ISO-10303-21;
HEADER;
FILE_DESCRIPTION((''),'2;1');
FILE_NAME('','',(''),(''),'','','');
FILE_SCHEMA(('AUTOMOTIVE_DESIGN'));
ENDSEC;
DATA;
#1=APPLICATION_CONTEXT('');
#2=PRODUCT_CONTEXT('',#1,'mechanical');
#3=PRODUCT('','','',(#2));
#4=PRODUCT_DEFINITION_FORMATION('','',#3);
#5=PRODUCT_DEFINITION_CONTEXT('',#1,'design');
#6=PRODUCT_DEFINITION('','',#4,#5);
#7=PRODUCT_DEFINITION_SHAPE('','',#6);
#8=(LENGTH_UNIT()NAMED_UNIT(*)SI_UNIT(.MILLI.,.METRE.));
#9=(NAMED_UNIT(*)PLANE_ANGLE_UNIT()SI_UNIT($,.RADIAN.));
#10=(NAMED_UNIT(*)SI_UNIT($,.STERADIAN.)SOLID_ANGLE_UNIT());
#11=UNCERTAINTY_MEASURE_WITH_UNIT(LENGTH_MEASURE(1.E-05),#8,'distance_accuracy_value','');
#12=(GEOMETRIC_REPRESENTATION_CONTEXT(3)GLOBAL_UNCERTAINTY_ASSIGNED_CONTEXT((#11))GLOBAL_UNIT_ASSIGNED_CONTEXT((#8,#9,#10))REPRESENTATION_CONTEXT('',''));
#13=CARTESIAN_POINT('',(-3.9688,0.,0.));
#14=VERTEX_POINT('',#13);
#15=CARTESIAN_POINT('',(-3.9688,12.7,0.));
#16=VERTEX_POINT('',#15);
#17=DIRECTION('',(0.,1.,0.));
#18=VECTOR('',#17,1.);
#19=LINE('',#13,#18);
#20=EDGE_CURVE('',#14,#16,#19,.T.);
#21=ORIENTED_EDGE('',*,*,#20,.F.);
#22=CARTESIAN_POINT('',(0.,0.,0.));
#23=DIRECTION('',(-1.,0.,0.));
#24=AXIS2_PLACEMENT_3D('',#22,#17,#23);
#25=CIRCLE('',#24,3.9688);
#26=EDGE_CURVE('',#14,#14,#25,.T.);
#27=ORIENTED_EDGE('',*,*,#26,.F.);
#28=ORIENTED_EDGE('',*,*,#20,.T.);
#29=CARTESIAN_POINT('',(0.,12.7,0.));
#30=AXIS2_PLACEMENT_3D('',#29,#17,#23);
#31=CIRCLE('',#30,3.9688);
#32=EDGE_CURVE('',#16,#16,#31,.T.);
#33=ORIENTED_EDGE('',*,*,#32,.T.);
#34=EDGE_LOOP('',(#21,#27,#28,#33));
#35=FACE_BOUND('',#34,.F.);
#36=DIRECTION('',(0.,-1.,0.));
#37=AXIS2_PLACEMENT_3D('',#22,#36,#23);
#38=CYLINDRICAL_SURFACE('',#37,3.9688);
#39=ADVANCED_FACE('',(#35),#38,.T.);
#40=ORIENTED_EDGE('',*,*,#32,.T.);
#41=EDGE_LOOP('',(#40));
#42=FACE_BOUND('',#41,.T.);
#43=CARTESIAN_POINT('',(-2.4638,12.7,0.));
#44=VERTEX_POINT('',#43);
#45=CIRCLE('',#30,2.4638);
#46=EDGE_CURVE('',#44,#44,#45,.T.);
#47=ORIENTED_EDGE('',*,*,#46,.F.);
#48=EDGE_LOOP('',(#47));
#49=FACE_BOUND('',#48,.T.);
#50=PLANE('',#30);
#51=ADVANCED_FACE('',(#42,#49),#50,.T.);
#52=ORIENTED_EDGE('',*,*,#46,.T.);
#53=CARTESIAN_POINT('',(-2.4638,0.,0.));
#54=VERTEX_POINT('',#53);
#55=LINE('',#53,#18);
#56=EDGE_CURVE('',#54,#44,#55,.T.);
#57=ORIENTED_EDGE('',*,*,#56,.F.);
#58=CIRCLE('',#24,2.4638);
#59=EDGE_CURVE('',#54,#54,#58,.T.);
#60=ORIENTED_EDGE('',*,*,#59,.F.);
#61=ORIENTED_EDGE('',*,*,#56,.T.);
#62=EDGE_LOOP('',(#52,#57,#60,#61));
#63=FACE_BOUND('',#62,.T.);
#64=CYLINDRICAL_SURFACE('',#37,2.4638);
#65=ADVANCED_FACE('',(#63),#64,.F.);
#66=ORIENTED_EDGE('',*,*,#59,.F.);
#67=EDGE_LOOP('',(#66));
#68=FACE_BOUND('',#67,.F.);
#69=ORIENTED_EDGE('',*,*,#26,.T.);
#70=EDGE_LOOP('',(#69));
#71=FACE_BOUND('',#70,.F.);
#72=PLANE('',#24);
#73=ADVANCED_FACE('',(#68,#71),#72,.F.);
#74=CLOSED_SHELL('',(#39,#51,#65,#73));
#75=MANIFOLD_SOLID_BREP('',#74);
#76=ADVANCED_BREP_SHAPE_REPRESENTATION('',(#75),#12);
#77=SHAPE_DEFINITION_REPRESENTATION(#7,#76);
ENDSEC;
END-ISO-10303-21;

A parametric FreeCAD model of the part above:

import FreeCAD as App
import Part
import Sketcher
from FreeCAD import Vector
Q = App.Units.Quantity

doc = App.newDocument("Part")
params = doc.addObject("Spreadsheet::Sheet", "Params")
for row, (alias, value) in enumerate([
    ("sketch1_diameter", "0.3125 in"),
    ("sketch1_diameter2", "0.194 in"),
    ("pad1_length", "0.5 in"),
], start=1):
    params.set(f"A{row}", alias)
    params.set(f"B{row}", "=" + value)
    params.setAlias(f"B{row}", alias)

body = doc.addObject("PartDesign::Body", "Body")

# Sketch on XZ plane
sketch1 = body.newObject("Sketcher::SketchObject", "Sketch")
sketch1.AttachmentSupport = (doc.getObject("XZ_Plane"), [""])
sketch1.MapMode = "FlatFace"
sketch1.addGeometry(Part.Circle(Vector(0, 0, 0), Vector(0, 0, 1), 4), False)
sketch1.addGeometry(Part.Circle(Vector(0, 0, 0), Vector(0, 0, 1), 2.5), False)
sketch1.addConstraint(Sketcher.Constraint("Coincident", 0, 3, -1, 1))
sketch1.addConstraint(Sketcher.Constraint("Coincident", 1, 3, -1, 1))
sketch1.addConstraint(Sketcher.Constraint("Diameter", 0, Q("0.3125 in")))
sketch1.addConstraint(Sketcher.Constraint("Diameter", 1, Q("0.194 in")))
sketch1.setExpression("Constraints[2]", "Params.sketch1_diameter")
sketch1.setExpression("Constraints[3]", "Params.sketch1_diameter2")
pad1 = body.newObject("PartDesign::Pad", "Pad")
pad1.Profile = sketch1
pad1.setExpression("Length", "Params.pad1_length")
pad1.Reversed = True

doc.recompute()
